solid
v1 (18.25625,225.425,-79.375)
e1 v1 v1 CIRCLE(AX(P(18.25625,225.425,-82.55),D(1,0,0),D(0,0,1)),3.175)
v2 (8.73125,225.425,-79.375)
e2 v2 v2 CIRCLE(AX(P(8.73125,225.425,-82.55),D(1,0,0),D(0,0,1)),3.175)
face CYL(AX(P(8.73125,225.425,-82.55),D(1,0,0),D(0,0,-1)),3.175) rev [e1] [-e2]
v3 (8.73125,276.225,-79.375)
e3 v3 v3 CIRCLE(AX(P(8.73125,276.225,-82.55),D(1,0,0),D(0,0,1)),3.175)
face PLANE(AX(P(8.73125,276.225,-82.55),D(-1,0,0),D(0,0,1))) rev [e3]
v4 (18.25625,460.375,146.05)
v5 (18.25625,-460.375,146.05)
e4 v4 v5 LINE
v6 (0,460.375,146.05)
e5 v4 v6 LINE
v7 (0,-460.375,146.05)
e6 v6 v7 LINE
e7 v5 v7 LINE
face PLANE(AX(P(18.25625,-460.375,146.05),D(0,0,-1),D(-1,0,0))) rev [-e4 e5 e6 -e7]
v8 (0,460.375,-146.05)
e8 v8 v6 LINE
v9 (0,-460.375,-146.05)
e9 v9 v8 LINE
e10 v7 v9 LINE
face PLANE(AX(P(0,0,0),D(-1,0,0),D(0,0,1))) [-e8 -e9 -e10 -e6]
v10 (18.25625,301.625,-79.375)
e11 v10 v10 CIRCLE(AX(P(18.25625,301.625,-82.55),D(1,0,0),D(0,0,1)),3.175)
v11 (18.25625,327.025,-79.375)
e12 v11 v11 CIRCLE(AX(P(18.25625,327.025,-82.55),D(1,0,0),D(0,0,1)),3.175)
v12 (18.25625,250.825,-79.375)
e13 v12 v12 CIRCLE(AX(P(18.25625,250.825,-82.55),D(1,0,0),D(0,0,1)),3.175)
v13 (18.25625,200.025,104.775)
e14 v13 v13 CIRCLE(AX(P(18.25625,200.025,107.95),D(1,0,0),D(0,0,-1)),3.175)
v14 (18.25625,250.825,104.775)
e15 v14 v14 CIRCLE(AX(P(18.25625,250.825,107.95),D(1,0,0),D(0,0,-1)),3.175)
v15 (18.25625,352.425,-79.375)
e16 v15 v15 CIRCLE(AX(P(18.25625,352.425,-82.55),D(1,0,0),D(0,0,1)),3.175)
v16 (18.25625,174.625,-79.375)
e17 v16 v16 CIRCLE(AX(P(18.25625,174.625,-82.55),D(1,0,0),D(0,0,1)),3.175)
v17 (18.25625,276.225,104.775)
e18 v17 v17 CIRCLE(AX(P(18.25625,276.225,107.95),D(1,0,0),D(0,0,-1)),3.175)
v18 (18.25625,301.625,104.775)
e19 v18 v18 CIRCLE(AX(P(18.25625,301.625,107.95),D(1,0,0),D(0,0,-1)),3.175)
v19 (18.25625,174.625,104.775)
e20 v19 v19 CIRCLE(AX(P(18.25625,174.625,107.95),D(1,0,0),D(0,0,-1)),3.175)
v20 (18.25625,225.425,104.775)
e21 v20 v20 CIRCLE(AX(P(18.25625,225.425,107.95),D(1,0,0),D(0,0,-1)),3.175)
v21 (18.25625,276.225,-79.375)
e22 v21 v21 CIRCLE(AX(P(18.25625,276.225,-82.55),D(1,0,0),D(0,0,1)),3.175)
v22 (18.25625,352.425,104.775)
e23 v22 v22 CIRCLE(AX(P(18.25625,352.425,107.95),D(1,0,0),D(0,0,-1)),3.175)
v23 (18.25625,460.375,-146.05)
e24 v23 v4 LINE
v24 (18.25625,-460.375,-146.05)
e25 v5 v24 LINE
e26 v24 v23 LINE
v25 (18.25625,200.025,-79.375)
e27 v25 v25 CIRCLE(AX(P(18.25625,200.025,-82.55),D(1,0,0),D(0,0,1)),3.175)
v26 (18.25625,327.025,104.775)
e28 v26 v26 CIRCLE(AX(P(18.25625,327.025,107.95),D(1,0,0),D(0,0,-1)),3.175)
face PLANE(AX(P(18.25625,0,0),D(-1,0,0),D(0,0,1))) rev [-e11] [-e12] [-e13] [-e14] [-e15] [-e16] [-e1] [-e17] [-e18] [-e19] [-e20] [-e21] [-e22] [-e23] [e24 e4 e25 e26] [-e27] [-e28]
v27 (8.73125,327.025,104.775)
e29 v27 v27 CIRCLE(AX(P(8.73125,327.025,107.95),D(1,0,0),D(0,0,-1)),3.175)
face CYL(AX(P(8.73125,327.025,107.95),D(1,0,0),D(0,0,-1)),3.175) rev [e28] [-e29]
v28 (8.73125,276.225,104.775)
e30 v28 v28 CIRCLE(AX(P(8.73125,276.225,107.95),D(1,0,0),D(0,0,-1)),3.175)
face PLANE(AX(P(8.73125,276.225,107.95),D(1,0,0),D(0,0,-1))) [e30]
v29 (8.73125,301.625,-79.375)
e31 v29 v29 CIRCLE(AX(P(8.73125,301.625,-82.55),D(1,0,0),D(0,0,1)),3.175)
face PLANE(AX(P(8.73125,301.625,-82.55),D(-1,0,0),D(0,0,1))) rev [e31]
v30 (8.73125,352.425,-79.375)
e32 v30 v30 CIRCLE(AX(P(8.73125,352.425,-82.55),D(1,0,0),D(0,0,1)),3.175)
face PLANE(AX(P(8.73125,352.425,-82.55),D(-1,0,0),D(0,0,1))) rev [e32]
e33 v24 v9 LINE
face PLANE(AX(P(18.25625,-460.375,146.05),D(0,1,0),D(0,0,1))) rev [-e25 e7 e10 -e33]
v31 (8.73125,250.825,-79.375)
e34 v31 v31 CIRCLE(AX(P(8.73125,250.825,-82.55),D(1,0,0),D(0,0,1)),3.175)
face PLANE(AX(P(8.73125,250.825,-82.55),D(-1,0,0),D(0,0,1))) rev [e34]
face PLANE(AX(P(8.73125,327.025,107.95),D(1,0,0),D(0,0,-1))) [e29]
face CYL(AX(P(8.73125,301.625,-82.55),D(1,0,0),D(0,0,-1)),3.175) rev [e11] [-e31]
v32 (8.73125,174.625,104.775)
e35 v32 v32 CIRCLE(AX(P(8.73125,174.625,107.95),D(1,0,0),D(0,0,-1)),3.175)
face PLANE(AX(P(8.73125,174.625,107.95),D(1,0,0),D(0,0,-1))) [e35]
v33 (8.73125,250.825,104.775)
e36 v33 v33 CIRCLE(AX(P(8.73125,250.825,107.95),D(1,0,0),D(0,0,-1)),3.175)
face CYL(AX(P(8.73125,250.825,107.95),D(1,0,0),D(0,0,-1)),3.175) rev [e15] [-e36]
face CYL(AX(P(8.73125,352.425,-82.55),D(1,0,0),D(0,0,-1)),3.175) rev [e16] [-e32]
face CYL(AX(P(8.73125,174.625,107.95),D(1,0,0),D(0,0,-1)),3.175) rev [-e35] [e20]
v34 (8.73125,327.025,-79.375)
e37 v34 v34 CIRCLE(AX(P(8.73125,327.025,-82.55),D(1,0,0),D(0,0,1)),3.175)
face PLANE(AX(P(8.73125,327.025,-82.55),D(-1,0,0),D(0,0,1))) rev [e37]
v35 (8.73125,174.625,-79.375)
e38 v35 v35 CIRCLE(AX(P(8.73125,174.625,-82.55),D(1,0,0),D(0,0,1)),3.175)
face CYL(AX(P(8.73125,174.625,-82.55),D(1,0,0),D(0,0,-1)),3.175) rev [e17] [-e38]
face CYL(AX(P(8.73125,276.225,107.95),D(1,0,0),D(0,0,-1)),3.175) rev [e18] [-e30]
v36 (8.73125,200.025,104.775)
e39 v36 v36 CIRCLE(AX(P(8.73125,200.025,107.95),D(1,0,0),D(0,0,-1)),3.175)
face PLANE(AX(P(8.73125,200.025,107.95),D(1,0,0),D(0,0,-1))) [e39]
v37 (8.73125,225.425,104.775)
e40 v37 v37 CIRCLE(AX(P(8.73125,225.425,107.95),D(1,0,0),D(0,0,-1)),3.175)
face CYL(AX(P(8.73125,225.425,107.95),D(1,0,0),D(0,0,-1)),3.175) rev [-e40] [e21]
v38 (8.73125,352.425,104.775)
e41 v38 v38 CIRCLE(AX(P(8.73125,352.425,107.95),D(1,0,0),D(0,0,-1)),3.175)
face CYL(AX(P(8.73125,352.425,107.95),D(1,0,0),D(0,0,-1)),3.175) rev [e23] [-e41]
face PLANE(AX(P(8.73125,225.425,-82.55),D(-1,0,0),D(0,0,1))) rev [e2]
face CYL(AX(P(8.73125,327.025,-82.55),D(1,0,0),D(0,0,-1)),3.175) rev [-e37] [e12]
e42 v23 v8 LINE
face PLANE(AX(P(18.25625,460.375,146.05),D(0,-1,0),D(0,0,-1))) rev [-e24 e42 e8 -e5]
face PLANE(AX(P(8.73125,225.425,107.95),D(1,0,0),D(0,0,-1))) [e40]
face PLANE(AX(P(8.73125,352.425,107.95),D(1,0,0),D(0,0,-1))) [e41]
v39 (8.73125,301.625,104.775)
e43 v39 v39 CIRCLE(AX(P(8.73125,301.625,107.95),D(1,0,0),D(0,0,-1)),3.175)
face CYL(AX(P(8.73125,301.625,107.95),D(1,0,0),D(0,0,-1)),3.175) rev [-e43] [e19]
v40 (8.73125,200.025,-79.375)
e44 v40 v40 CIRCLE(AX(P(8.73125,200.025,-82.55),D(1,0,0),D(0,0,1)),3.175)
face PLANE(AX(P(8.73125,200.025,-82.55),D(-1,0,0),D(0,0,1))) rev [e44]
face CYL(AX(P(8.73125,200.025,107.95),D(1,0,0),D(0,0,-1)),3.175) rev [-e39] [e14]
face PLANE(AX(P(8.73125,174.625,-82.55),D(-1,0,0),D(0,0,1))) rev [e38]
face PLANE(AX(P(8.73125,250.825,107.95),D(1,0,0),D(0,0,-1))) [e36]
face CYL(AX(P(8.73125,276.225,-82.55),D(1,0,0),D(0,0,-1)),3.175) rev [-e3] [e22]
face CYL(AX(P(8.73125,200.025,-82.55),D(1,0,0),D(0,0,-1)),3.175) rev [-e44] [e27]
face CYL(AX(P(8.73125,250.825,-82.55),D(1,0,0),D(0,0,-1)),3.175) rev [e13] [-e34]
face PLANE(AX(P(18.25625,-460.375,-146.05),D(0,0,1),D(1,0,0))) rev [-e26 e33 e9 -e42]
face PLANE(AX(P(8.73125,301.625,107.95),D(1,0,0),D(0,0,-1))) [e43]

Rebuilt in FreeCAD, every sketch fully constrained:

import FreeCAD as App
import Part
import Sketcher
Q = App.Units.Quantity

doc = App.newDocument("Part")
params = doc.addObject("Spreadsheet::Sheet", "Params")
for row, (alias, value) in enumerate([
    ("sketch1_height", "11.5 in"),
    ("sketch1_width", "36.25 in"),
    ("pad1_length", "0.71875 in"),
    ("sketch2_diameter", "0.25 in"),
    ("pocket1_length", "0.375 in"),
], start=1):
    params.set(f"A{row}", alias)
    params.set(f"B{row}", "=" + value)
    params.setAlias(f"B{row}", alias)

body = doc.addObject("PartDesign::Body", "Body")

# Sketch on YZ plane
sketch1 = doc.addObject("Sketcher::SketchObject", "Sketch")
body.addObject(sketch1)
sketch1.AttachmentSupport = (doc.YZ_Plane, [""])
sketch1.MapMode = "FlatFace"
sketch1.addGeometry(Part.LineSegment(App.Vector(460, 146, 0), App.Vector(-460, 146, 0)), False)
sketch1.addGeometry(Part.LineSegment(App.Vector(-460, 146, 0), App.Vector(-460, -146, 0)), False)
sketch1.addGeometry(Part.LineSegment(App.Vector(-460, -146, 0), App.Vector(460, -146, 0)), False)
sketch1.addGeometry(Part.LineSegment(App.Vector(460, -146, 0), App.Vector(460, 146, 0)), False)
sketch1.addConstraint(Sketcher.Constraint("Coincident", 0, 2, 1, 1))
sketch1.addConstraint(Sketcher.Constraint("Coincident", 1, 2, 2, 1))
sketch1.addConstraint(Sketcher.Constraint("Coincident", 2, 2, 3, 1))
sketch1.addConstraint(Sketcher.Constraint("Coincident", 3, 2, 0, 1))
sketch1.addConstraint(Sketcher.Constraint("Horizontal", 0))
sketch1.addConstraint(Sketcher.Constraint("Vertical", 1))
sketch1.addConstraint(Sketcher.Constraint("Horizontal", 2))
sketch1.addConstraint(Sketcher.Constraint("Vertical", 3))
sketch1.addConstraint(Sketcher.Constraint("Symmetric", 0, 2, 2, 2, -1, 1))
sketch1.addConstraint(Sketcher.Constraint("DistanceY", 1, 2, 1, 1, Q("11.5 in")))
sketch1.addConstraint(Sketcher.Constraint("DistanceX", 0, 2, 0, 1, Q("36.25 in")))
sketch1.setExpression("Constraints[9]", "Params.sketch1_height")
sketch1.setExpression("Constraints[10]", "Params.sketch1_width")
pad1 = doc.addObject("PartDesign::Pad", "Pad")
body.addObject(pad1)
pad1.Profile = sketch1
pad1.setExpression("Length", "Params.pad1_length")

# Sketch on YZ plane
sketch2 = doc.addObject("Sketcher::SketchObject", "Sketch001")
body.addObject(sketch2)
sketch2.AttachmentSupport = (doc.YZ_Plane, [""])
sketch2.MapMode = "FlatFace"
sketch2.AttachmentOffset = App.Placement(App.Vector(0, 0, 0.71875 * 25.4), App.Rotation())
sketch2.addGeometry(Part.Circle(App.Vector(352.4, 108, 0), App.Vector(0, 0, 1), 3.2), False)
sketch2.addGeometry(Part.Circle(App.Vector(327, 108, 0), App.Vector(0, 0, 1), 3.2), False)
sketch2.addGeometry(Part.Circle(App.Vector(301.6, 108, 0), App.Vector(0, 0, 1), 3.2), False)
sketch2.addGeometry(Part.Circle(App.Vector(276.2, 108, 0), App.Vector(0, 0, 1), 3.2), False)
sketch2.addGeometry(Part.Circle(App.Vector(250.8, 108, 0), App.Vector(0, 0, 1), 3.2), False)
sketch2.addGeometry(Part.Circle(App.Vector(225.4, 108, 0), App.Vector(0, 0, 1), 3.2), False)
sketch2.addGeometry(Part.Circle(App.Vector(200, 108, 0), App.Vector(0, 0, 1), 3.2), False)
sketch2.addGeometry(Part.Circle(App.Vector(174.6, 108, 0), App.Vector(0, 0, 1), 3.2), False)
sketch2.addGeometry(Part.Circle(App.Vector(174.6, -82.5, 0), App.Vector(0, 0, 1), 3.2), False)
sketch2.addGeometry(Part.Circle(App.Vector(200, -82.5, 0), App.Vector(0, 0, 1), 3.2), False)
sketch2.addGeometry(Part.Circle(App.Vector(225.4, -82.5, 0), App.Vector(0, 0, 1), 3.2), False)
sketch2.addGeometry(Part.Circle(App.Vector(250.8, -82.5, 0), App.Vector(0, 0, 1), 3.2), False)
sketch2.addGeometry(Part.Circle(App.Vector(276.2, -82.5, 0), App.Vector(0, 0, 1), 3.2), False)
sketch2.addGeometry(Part.Circle(App.Vector(301.6, -82.5, 0), App.Vector(0, 0, 1), 3.2), False)
sketch2.addGeometry(Part.Circle(App.Vector(327, -82.5, 0), App.Vector(0, 0, 1), 3.2), False)
sketch2.addGeometry(Part.Circle(App.Vector(352.4, -82.5, 0), App.Vector(0, 0, 1), 3.2), False)
sketch2.addConstraint(Sketcher.Constraint("Equal", 0, 1))
sketch2.addConstraint(Sketcher.Constraint("Equal", 1, 2))
sketch2.addConstraint(Sketcher.Constraint("Equal", 2, 3))
sketch2.addConstraint(Sketcher.Constraint("Equal", 3, 4))
sketch2.addConstraint(Sketcher.Constraint("Equal", 4, 5))
sketch2.addConstraint(Sketcher.Constraint("Equal", 5, 6))
sketch2.addConstraint(Sketcher.Constraint("Equal", 6, 7))
sketch2.addConstraint(Sketcher.Constraint("Equal", 7, 8))
sketch2.addConstraint(Sketcher.Constraint("Equal", 8, 9))
sketch2.addConstraint(Sketcher.Constraint("Equal", 9, 10))
sketch2.addConstraint(Sketcher.Constraint("Equal", 10, 11))
sketch2.addConstraint(Sketcher.Constraint("Equal", 11, 12))
sketch2.addConstraint(Sketcher.Constraint("Equal", 12, 13))
sketch2.addConstraint(Sketcher.Constraint("Equal", 13, 14))
sketch2.addConstraint(Sketcher.Constraint("Equal", 14, 15))
sketch2.addConstraint(Sketcher.Constraint("Horizontal", 0, 3, 1, 3))
sketch2.addConstraint(Sketcher.Constraint("Horizontal", 1, 3, 2, 3))
sketch2.addConstraint(Sketcher.Constraint("Horizontal", 2, 3, 3, 3))
sketch2.addConstraint(Sketcher.Constraint("Horizontal", 3, 3, 4, 3))
sketch2.addConstraint(Sketcher.Constraint("Horizontal", 4, 3, 5, 3))
sketch2.addConstraint(Sketcher.Constraint("Horizontal", 5, 3, 6, 3))
sketch2.addConstraint(Sketcher.Constraint("Horizontal", 6, 3, 7, 3))
sketch2.addConstraint(Sketcher.Constraint("Horizontal", 8, 3, 9, 3))
sketch2.addConstraint(Sketcher.Constraint("Horizontal", 9, 3, 10, 3))
sketch2.addConstraint(Sketcher.Constraint("Horizontal", 10, 3, 11, 3))
sketch2.addConstraint(Sketcher.Constraint("Horizontal", 11, 3, 12, 3))
sketch2.addConstraint(Sketcher.Constraint("Horizontal", 12, 3, 13, 3))
sketch2.addConstraint(Sketcher.Constraint("Horizontal", 13, 3, 14, 3))
sketch2.addConstraint(Sketcher.Constraint("Horizontal", 14, 3, 15, 3))
sketch2.addConstraint(Sketcher.Constraint("Vertical", 7, 3, 8, 3))
sketch2.addConstraint(Sketcher.Constraint("Vertical", 6, 3, 9, 3))
sketch2.addConstraint(Sketcher.Constraint("Vertical", 5, 3, 10, 3))
sketch2.addConstraint(Sketcher.Constraint("Vertical", 4, 3, 11, 3))
sketch2.addConstraint(Sketcher.Constraint("Vertical", 3, 3, 12, 3))
sketch2.addConstraint(Sketcher.Constraint("Vertical", 2, 3, 13, 3))
sketch2.addConstraint(Sketcher.Constraint("Vertical", 1, 3, 14, 3))
sketch2.addConstraint(Sketcher.Constraint("Vertical", 0, 3, 15, 3))
sketch2.addConstraint(Sketcher.Constraint("Diameter", 0, Q("0.25 in")))
sketch2.addConstraint(Sketcher.Constraint("DistanceX", 1, 3, 0, 3, Q("1 in")))
sketch2.addConstraint(Sketcher.Constraint("DistanceX", 2, 3, 1, 3, Q("1 in")))
sketch2.addConstraint(Sketcher.Constraint("DistanceX", 3, 3, 2, 3, Q("1 in")))
sketch2.addConstraint(Sketcher.Constraint("DistanceX", 4, 3, 3, 3, Q("1 in")))
sketch2.addConstraint(Sketcher.Constraint("DistanceX", 5, 3, 4, 3, Q("1 in")))
sketch2.addConstraint(Sketcher.Constraint("DistanceX", 6, 3, 5, 3, Q("1 in")))
sketch2.addConstraint(Sketcher.Constraint("DistanceX", 7, 3, 6, 3, Q("1 in")))
sketch2.addConstraint(Sketcher.Constraint("DistanceY", 8, 3, 7, 3, Q("7.5 in")))
sketch2.addConstraint(Sketcher.Constraint("DistanceY", -1, 1, 0, 3, Q("4.25 in")))
sketch2.addConstraint(Sketcher.Constraint("DistanceX", -1, 1, 0, 3, Q("13.875 in")))
sketch2.setExpression("Constraints[37]", "Params.sketch2_diameter")
pocket1 = doc.addObject("PartDesign::Pocket", "Pocket")
body.addObject(pocket1)
pocket1.Profile = sketch2
pocket1.setExpression("Length", "Params.pocket1_length")

doc.recompute()
